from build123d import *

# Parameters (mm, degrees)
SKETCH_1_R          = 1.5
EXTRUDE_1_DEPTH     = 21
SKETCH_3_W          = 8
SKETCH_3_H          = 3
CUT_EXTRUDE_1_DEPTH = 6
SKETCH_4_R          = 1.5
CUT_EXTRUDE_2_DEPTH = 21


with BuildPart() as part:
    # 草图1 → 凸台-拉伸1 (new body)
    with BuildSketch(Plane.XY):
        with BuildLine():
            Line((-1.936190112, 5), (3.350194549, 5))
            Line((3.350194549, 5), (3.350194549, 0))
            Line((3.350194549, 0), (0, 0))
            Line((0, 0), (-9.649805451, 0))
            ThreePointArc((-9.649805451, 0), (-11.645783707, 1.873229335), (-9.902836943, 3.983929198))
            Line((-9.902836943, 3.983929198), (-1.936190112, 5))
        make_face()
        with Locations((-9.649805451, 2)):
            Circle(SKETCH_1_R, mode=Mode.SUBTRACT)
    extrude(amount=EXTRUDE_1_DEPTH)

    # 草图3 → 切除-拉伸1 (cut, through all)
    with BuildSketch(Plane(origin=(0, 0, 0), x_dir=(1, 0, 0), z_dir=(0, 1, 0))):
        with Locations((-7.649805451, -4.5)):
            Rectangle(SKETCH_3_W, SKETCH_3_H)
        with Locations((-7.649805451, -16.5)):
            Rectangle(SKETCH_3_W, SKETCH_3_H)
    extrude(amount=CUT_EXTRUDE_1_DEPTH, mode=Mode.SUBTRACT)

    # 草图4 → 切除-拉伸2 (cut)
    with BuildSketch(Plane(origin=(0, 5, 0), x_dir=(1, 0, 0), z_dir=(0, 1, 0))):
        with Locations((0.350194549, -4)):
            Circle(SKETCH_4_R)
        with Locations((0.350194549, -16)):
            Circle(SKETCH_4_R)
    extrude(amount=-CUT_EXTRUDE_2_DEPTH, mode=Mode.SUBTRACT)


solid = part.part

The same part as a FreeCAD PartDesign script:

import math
import FreeCAD as App
import Part
import Sketcher

V = App.Vector
Q = App.Units.Quantity

doc = App.newDocument("Part")
params = doc.addObject("Spreadsheet::Sheet", "Params")
for row, (alias, value) in enumerate([
    ("sketch1_diameter", "3 mm"),
    ("sketch1_radius", "2 mm"),
    ("sketch1_width", "13 mm"),
    ("sketch1_height", "5 mm"),
    ("pad1_length", "21 mm"),
    ("sketch2_width", "8 mm"),
    ("sketch2_height", "3 mm"),
    ("sketch3_diameter", "3 mm"),
    ("pocket2_length", "21 mm"),
], start=1):
    params.set(f"A{row}", alias)
    params.set(f"B{row}", "=" + value)
    params.setAlias(f"B{row}", alias)

body = doc.addObject("PartDesign::Body", "Body")

sketch1 = doc.addObject("Sketcher::SketchObject", "Sketch")
body.addObject(sketch1)
sketch1.AttachmentSupport = (doc.XY_Plane, [""])
sketch1.MapMode = "FlatFace"
sketch1.addGeometry([
    Part.LineSegment(V(3.4, 5, 0), V(-1.9, 5, 0)),
    Part.LineSegment(V(-1.9, 5, 0), V(-9.9, 4, 0)),
    Part.ArcOfCircle(Part.Circle(V(-9.6, 2, 0), V(0, 0, 1), 2), math.radians(97), math.radians(270)),
    Part.LineSegment(V(-9.6, 0, 0), V(3.4, 0, 0)),
    Part.LineSegment(V(3.4, 0, 0), V(3.4, 5, 0)),
    Part.Circle(V(-9.6, 2, 0), V(0, 0, 1), 1.5),
], False)
sketch1.addConstraint([
    Sketcher.Constraint("Coincident", 0, 2, 1, 1),
    Sketcher.Constraint("Tangent", 1, 2, 2, 1),
    Sketcher.Constraint("Tangent", 2, 2, 3, 1),
    Sketcher.Constraint("Coincident", 3, 2, 4, 1),
    Sketcher.Constraint("Coincident", 4, 2, 0, 1),
    Sketcher.Constraint("Horizontal", 0),
    Sketcher.Constraint("Horizontal", 3),
    Sketcher.Constraint("Vertical", 4),
    Sketcher.Constraint("Coincident", 5, 3, 2, 3),
    Sketcher.Constraint("PointOnObject", 2, 2, -1),
    Sketcher.Constraint("Diameter", 5, Q("3 mm")),
    Sketcher.Constraint("Radius", 2, Q("2 mm")),
    Sketcher.Constraint("DistanceX", 3, 1, 3, 2, Q("13 mm")),
    Sketcher.Constraint("DistanceY", 4, 1, 4, 2, Q("5 mm")),
    Sketcher.Constraint("Distance", 1, Q("8.031181 mm")),
    Sketcher.Constraint("DistanceX", 0, 2, -1, 1, Q("1.93619 mm")),
])
sketch1.setExpression("Constraints[10]", "Params.sketch1_diameter")
sketch1.setExpression("Constraints[11]", "Params.sketch1_radius")
sketch1.setExpression("Constraints[12]", "Params.sketch1_width")
sketch1.setExpression("Constraints[13]", "Params.sketch1_height")
pad1 = doc.addObject("PartDesign::Pad", "Pad")
body.addObject(pad1)
pad1.Profile = sketch1
pad1.setExpression("Length", "Params.pad1_length")

sketch2 = doc.addObject("Sketcher::SketchObject", "Sketch001")
body.addObject(sketch2)
sketch2.AttachmentSupport = (doc.XZ_Plane, [""])
sketch2.MapMode = "FlatFace"
sketch2.addGeometry([
    Part.LineSegment(V(-11.6, 3, 0), V(-11.6, 6, 0)),
    Part.LineSegment(V(-11.6, 6, 0), V(-3.6, 6, 0)),
    Part.LineSegment(V(-3.6, 6, 0), V(-3.6, 3, 0)),
    Part.LineSegment(V(-3.6, 3, 0), V(-11.6, 3, 0)),
    Part.LineSegment(V(-11.6, 15, 0), V(-11.6, 18, 0)),
    Part.LineSegment(V(-11.6, 18, 0), V(-3.6, 18, 0)),
    Part.LineSegment(V(-3.6, 18, 0), V(-3.6, 15, 0)),
    Part.LineSegment(V(-3.6, 15, 0), V(-11.6, 15, 0)),
], False)
sketch2.addConstraint([
    Sketcher.Constraint("Coincident", 0, 2, 1, 1),
    Sketcher.Constraint("Coincident", 1, 2, 2, 1),
    Sketcher.Constraint("Coincident", 2, 2, 3, 1),
    Sketcher.Constraint("Coincident", 3, 2, 0, 1),
    Sketcher.Constraint("Coincident", 4, 2, 5, 1),
    Sketcher.Constraint("Coincident", 5, 2, 6, 1),
    Sketcher.Constraint("Coincident", 6, 2, 7, 1),
    Sketcher.Constraint("Coincident", 7, 2, 4, 1),
    Sketcher.Constraint("Vertical", 0),
    Sketcher.Constraint("Horizontal", 1),
    Sketcher.Constraint("Vertical", 2),
    Sketcher.Constraint("Horizontal", 3),
    Sketcher.Constraint("Vertical", 4),
    Sketcher.Constraint("Horizontal", 5),
    Sketcher.Constraint("Vertical", 6),
    Sketcher.Constraint("Horizontal", 7),
    Sketcher.Constraint("Vertical", 3, 2, 4, 2),
    Sketcher.Constraint("Vertical", 2, 2, 5, 2),
    Sketcher.Constraint("Equal", 2, 4),
    Sketcher.Constraint("DistanceX", 1, 1, 1, 2, Q("8 mm")),
    Sketcher.Constraint("DistanceY", 0, 1, 0, 2, Q("3 mm")),
    Sketcher.Constraint("DistanceY", -1, 1, 0, 2, Q("6 mm")),
    Sketcher.Constraint("DistanceY", -1, 1, 4, 2, Q("18 mm")),
    Sketcher.Constraint("DistanceX", 0, 2, -1, 1, Q("11.649805 mm")),
])
sketch2.setExpression("Constraints[19]", "Params.sketch2_width")
sketch2.setExpression("Constraints[20]", "Params.sketch2_height")
pocket1 = doc.addObject("PartDesign::Pocket", "Pocket")
body.addObject(pocket1)
pocket1.Profile = sketch2
pocket1.Type = "ThroughAll"

sketch3 = doc.addObject("Sketcher::SketchObject", "Sketch002")
body.addObject(sketch3)
sketch3.AttachmentSupport = (doc.XZ_Plane, [""])
sketch3.MapMode = "FlatFace"
sketch3.AttachmentOffset = App.Placement(V(0, 0, -5), App.Rotation())
sketch3.addGeometry([
    Part.Circle(V(0.4, 4, 0), V(0, 0, 1), 1.5),
    Part.Circle(V(0.4, 16, 0), V(0, 0, 1), 1.5),
], False)
sketch3.addConstraint([
    Sketcher.Constraint("Equal", 0, 1),
    Sketcher.Constraint("Vertical", 0, 3, 1, 3),
    Sketcher.Constraint("Diameter", 0, Q("3 mm")),
    Sketcher.Constraint("DistanceY", -1, 1, 0, 3, Q("4 mm")),
    Sketcher.Constraint("DistanceY", -1, 1, 1, 3, Q("16 mm")),
    Sketcher.Constraint("DistanceX", -1, 1, 0, 3, Q("0.350195 mm")),
])
sketch3.setExpression("Constraints[2]", "Params.sketch3_diameter")
pocket2 = doc.addObject("PartDesign::Pocket", "Pocket001")
body.addObject(pocket2)
pocket2.Profile = sketch3
pocket2.setExpression("Length", "Params.pocket2_length")
pocket2.Reversed = True

doc.recompute()
